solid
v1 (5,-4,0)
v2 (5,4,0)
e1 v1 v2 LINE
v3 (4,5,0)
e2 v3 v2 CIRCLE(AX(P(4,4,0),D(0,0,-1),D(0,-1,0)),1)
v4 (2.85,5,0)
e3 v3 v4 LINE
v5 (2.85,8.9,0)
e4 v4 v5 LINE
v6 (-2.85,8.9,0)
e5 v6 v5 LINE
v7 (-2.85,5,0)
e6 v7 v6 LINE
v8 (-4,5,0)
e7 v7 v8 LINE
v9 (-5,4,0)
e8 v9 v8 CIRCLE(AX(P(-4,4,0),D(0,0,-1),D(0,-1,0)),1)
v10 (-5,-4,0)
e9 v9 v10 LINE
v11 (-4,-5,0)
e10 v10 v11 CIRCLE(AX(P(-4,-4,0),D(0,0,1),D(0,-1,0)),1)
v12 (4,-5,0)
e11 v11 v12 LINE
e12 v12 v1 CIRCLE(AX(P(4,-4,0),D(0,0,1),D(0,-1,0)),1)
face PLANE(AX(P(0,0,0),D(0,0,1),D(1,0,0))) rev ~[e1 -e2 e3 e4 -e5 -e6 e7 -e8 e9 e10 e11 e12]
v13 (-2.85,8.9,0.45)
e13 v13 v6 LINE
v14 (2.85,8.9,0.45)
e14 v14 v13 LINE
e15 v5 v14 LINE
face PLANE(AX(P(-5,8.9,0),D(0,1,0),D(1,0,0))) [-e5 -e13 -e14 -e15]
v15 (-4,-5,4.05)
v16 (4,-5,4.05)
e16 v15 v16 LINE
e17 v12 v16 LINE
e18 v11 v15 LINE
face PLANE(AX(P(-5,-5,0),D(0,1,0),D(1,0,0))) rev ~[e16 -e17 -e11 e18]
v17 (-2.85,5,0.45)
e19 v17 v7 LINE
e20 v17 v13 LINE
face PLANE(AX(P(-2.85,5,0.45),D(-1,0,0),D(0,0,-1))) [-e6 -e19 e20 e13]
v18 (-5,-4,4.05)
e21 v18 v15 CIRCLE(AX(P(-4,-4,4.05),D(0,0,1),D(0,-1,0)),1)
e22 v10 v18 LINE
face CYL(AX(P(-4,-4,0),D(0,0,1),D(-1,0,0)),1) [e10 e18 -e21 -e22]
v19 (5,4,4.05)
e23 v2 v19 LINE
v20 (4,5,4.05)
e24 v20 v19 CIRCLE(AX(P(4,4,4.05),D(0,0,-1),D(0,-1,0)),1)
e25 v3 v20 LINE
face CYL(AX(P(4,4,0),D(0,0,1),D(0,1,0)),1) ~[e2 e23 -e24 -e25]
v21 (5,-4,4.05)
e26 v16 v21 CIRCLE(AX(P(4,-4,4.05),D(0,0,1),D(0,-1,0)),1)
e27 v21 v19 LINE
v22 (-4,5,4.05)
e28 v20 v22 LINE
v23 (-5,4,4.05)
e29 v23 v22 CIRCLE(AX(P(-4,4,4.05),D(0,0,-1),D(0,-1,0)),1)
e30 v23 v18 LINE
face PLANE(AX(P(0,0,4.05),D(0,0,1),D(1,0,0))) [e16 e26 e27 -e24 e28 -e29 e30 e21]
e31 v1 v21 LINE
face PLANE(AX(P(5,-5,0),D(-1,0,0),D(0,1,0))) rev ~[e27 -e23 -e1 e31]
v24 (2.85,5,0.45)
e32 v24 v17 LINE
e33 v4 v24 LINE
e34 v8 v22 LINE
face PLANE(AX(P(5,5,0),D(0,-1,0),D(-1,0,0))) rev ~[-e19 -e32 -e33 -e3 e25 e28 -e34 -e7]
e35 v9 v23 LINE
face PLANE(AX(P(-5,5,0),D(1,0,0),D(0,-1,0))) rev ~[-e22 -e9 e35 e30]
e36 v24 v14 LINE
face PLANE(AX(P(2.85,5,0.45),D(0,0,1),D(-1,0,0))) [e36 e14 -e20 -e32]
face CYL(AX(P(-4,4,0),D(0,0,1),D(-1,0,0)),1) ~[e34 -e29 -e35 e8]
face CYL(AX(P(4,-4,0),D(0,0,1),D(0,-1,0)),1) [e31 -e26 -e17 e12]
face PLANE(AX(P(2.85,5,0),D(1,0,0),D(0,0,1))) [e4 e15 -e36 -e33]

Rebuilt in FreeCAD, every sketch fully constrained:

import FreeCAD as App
import Part
import Sketcher
from FreeCAD import Vector
Q = App.Units.Quantity


def edges_at(feature, points):
    """Names of the edges that pass closest to the given points."""
    edges = feature.Shape.Edges
    near = lambda p: min(range(len(edges)), key=lambda i: edges[i].distToShape(Part.Vertex(*p))[0])
    return sorted({f"Edge{near(p) + 1}" for p in points})


def add_polygon(sketch, points):
    """Adds a closed chain of lines whose ends are joined by coincident constraints."""
    first, n = sketch.GeometryCount, len(points)
    for a, b in zip(points, points[1:] + points[:1]):
        sketch.addGeometry(Part.LineSegment(App.Vector(*a, 0), App.Vector(*b, 0)), False)
    for i in range(n):
        sketch.addConstraint(Sketcher.Constraint("Coincident", first + i, 2, first + (i + 1) % n, 1))

doc = App.newDocument("Part")
body = doc.addObject("PartDesign::Body", "Body")

sketch1 = doc.addObject("Sketcher::SketchObject", "Sketch")
body.addObject(sketch1)
sketch1.AttachmentSupport = (doc.XY_Plane, [""])
sketch1.MapMode = "FlatFace"
add_polygon(sketch1, [(-5, 5), (-5, -5), (5, -5), (5, 5)])
sketch1.addConstraint([
    Sketcher.Constraint("Vertical", 0),
    Sketcher.Constraint("Horizontal", 1),
    Sketcher.Constraint("Vertical", 2),
    Sketcher.Constraint("Horizontal", 3),
    Sketcher.Constraint("Symmetric", 0, 2, 2, 2, -1, 1),
    Sketcher.Constraint("Equal", 3, 0),
    Sketcher.Constraint("DistanceX", 1, 1, 1, 2, Q("10 mm")),
])
pad1 = doc.addObject("PartDesign::Pad", "Pad")
body.addObject(pad1)
pad1.Profile = sketch1
pad1.Length = 4.05

sketch2 = doc.addObject("Sketcher::SketchObject", "Sketch001")
body.addObject(sketch2)
sketch2.AttachmentSupport = (doc.XZ_Plane, [""])
sketch2.MapMode = "FlatFace"
sketch2.AttachmentOffset = App.Placement(Vector(0, 0, -5), App.Rotation())
add_polygon(sketch2, [(2.85, 0), (-2.85, 0), (-2.85, 0.45), (2.85, 0.45)])
sketch2.addConstraint([
    Sketcher.Constraint("Horizontal", 0),
    Sketcher.Constraint("Vertical", 1),
    Sketcher.Constraint("Horizontal", 2),
    Sketcher.Constraint("Vertical", 3),
    Sketcher.Constraint("Symmetric", 0, 2, 3, 2, -1, 1),
    Sketcher.Constraint("DistanceX", 0, 2, 0, 1, Q("5.7 mm")),
    Sketcher.Constraint("DistanceY", 1, 1, 1, 2, Q("0.45 mm")),
])
pad2 = doc.addObject("PartDesign::Pad", "Pad001")
body.addObject(pad2)
pad2.Profile = sketch2
pad2.Length = 3.9
pad2.Reversed = True
doc.recompute()

fillet = doc.addObject("PartDesign::Fillet", "Fillet")
body.addObject(fillet)
fillet.Base = (pad2, edges_at(pad2, [
    (5, 5, 2.025),
    (5, -5, 2.025),
    (-5, 5, 2.025),
    (-5, -5, 2.025),
]))
fillet.Radius = 1

doc.recompute()
